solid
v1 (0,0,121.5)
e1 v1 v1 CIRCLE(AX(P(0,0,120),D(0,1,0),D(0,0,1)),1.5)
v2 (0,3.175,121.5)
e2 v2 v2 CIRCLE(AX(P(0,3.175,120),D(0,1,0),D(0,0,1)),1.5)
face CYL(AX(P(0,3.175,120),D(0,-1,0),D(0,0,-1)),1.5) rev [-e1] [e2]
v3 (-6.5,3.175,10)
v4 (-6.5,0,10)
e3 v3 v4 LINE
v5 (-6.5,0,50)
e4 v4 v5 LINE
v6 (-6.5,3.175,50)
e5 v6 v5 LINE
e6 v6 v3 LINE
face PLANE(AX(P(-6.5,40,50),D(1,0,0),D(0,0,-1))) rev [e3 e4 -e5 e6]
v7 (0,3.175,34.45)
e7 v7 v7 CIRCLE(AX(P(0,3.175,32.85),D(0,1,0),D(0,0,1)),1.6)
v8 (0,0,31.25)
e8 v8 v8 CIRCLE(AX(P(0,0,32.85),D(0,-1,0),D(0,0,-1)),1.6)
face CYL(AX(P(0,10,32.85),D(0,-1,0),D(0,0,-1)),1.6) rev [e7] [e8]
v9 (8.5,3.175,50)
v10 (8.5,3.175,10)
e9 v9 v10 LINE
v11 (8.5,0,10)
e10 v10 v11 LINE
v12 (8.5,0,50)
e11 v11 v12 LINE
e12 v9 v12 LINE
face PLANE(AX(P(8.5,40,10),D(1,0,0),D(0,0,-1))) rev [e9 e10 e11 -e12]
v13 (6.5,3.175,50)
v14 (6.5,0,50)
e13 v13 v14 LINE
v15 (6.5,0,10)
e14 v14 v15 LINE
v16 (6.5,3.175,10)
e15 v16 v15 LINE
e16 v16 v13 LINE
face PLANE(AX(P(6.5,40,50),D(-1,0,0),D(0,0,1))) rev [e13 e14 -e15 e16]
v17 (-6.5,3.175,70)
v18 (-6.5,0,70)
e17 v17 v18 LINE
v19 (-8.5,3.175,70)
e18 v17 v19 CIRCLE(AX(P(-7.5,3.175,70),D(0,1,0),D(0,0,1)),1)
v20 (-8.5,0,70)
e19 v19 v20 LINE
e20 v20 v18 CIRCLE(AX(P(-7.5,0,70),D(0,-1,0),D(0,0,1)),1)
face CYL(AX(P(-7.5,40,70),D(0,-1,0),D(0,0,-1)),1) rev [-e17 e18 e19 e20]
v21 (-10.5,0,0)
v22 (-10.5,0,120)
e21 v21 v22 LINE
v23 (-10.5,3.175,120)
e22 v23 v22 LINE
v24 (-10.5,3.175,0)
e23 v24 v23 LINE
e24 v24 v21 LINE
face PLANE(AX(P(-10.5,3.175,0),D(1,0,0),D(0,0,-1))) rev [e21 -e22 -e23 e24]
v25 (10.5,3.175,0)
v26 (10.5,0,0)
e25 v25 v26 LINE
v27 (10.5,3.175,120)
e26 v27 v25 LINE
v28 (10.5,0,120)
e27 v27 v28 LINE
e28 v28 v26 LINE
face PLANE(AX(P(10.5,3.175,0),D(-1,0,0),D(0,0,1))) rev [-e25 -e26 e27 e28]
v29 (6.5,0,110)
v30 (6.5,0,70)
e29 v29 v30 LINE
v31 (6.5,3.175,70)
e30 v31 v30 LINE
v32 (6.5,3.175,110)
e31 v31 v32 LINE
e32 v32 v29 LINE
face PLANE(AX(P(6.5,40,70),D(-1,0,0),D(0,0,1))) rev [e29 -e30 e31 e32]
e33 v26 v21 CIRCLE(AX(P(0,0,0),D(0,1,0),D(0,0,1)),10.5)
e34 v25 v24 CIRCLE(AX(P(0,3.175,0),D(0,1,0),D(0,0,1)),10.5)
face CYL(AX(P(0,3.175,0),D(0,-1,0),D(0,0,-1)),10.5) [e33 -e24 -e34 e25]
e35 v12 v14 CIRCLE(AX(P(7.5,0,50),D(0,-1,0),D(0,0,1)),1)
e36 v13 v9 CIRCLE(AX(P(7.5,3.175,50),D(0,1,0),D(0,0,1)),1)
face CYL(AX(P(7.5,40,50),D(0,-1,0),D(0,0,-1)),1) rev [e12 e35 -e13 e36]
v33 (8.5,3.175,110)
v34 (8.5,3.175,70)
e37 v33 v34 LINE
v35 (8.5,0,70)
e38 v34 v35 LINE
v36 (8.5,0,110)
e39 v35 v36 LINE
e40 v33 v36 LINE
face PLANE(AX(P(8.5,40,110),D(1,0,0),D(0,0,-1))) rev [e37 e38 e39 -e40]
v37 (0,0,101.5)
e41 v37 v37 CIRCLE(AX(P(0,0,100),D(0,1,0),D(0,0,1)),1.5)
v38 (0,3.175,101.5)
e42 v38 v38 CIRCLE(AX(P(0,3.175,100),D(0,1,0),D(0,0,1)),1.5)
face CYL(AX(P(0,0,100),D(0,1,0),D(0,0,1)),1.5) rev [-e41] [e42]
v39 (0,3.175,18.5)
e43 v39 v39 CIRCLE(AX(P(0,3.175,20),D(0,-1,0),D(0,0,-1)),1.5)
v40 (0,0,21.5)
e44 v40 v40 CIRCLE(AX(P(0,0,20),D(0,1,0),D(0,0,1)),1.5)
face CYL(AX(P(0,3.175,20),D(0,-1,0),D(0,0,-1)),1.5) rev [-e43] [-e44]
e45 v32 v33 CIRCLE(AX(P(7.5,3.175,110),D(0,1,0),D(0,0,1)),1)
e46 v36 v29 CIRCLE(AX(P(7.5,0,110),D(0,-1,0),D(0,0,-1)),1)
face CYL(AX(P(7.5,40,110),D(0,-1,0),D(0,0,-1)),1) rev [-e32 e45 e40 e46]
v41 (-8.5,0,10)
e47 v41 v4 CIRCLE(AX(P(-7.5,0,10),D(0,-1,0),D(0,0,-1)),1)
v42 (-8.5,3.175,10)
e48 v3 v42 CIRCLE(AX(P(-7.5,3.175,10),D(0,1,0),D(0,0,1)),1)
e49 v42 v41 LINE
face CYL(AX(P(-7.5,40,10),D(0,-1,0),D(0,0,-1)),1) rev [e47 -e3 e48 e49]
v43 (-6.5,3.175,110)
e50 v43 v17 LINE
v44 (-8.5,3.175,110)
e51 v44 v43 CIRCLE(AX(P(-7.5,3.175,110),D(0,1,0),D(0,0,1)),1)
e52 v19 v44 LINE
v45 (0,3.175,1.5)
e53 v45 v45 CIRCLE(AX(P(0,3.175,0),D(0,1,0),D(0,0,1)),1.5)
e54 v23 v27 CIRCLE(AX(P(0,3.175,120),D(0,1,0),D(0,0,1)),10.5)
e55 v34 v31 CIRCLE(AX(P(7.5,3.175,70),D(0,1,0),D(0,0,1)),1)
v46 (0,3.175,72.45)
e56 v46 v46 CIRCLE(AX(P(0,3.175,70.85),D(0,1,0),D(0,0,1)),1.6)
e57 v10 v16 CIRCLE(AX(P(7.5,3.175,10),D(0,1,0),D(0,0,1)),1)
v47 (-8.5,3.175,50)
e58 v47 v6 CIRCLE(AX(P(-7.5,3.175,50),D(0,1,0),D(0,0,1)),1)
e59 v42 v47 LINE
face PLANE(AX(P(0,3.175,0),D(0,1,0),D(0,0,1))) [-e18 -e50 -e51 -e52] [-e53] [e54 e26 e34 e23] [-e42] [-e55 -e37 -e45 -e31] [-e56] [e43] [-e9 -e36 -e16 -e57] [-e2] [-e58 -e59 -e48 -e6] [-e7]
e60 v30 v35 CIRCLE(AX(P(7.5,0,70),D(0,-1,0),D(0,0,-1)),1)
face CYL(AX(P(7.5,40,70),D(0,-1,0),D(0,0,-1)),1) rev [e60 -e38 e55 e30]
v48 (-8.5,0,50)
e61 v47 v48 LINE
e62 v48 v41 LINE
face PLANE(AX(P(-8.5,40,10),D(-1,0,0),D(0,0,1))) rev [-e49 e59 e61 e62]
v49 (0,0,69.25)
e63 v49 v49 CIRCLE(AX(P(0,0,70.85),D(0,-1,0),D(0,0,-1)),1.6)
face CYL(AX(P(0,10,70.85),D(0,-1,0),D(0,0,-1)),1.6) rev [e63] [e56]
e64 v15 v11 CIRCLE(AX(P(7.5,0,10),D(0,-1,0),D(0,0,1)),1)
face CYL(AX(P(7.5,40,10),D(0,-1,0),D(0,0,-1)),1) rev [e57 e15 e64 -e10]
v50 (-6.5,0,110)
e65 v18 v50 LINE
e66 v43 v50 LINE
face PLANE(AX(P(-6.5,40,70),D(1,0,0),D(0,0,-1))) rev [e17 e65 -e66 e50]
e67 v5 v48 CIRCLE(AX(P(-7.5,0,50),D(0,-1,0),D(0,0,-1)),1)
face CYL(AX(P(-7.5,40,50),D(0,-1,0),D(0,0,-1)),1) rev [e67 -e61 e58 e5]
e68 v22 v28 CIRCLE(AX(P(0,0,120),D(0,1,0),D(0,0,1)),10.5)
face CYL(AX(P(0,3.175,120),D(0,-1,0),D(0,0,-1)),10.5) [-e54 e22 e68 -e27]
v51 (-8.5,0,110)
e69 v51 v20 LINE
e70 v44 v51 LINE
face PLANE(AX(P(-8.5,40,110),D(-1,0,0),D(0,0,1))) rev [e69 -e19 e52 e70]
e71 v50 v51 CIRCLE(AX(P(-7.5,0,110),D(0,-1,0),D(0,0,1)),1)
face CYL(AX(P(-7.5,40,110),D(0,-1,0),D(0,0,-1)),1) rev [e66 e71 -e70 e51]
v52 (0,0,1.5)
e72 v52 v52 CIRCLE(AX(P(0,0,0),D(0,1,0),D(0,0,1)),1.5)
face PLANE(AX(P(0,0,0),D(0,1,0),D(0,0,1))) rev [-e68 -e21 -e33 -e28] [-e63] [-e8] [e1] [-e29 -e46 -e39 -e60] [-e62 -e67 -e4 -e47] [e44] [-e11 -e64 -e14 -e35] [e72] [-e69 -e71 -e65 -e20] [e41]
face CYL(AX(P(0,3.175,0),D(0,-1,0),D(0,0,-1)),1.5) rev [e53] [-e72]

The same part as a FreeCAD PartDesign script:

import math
import FreeCAD as App
import Part
import Sketcher

V = App.Vector
Q = App.Units.Quantity

doc = App.newDocument("Part")
body = doc.addObject("PartDesign::Body", "Body")

# Sketch on XZ plane
sketch1 = doc.addObject("Sketcher::SketchObject", "Sketch")
body.addObject(sketch1)
sketch1.AttachmentSupport = (doc.XZ_Plane, [""])
sketch1.MapMode = "FlatFace"
sketch1.addGeometry(Part.LineSegment(V(-10.5, 0, 0), V(-10.5, 120, 0)), False)
sketch1.addGeometry(Part.ArcOfCircle(Part.Circle(V(0, 120, 0), V(0, 0, 1), 10.5), math.radians(0), math.radians(180)), False)
sketch1.addGeometry(Part.LineSegment(V(10.5, 120, 0), V(10.5, 0, 0)), False)
sketch1.addGeometry(Part.ArcOfCircle(Part.Circle(V(0, 0, 0), V(0, 0, 1), 10.5), math.radians(180), math.radians(360)), False)
sketch1.addGeometry(Part.Circle(V(0, 120, 0), V(0, 0, 1), 1.5), False)
sketch1.addGeometry(Part.Circle(V(0, 0, 0), V(0, 0, 1), 1.5), False)
sketch1.addConstraint(Sketcher.Constraint("Tangent", 0, 2, 1, 2))
sketch1.addConstraint(Sketcher.Constraint("Tangent", 1, 1, 2, 1))
sketch1.addConstraint(Sketcher.Constraint("Tangent", 2, 2, 3, 2))
sketch1.addConstraint(Sketcher.Constraint("Tangent", 3, 1, 0, 1))
sketch1.addConstraint(Sketcher.Constraint("Vertical", 0))
sketch1.addConstraint(Sketcher.Constraint("Vertical", 2))
sketch1.addConstraint(Sketcher.Constraint("Coincident", 3, 3, -1, 1))
sketch1.addConstraint(Sketcher.Constraint("Coincident", 5, 3, -1, 1))
sketch1.addConstraint(Sketcher.Constraint("Coincident", 4, 3, 1, 3))
sketch1.addConstraint(Sketcher.Constraint("Equal", 4, 5))
sketch1.addConstraint(Sketcher.Constraint("Diameter", 4, Q("3 mm")))
sketch1.addConstraint(Sketcher.Constraint("Radius", 1, Q("10.5 mm")))
sketch1.addConstraint(Sketcher.Constraint("DistanceY", 0, 1, 0, 2, Q("120 mm")))
pad1 = doc.addObject("PartDesign::Pad", "Pad")
body.addObject(pad1)
pad1.Profile = sketch1
pad1.Length = 3.175
pad1.Reversed = True

# Sketch on XZ plane
sketch2 = doc.addObject("Sketcher::SketchObject", "Sketch001")
body.addObject(sketch2)
sketch2.AttachmentSupport = (doc.XZ_Plane, [""])
sketch2.MapMode = "FlatFace"
sketch2.addGeometry(Part.Circle(V(0, 20, 0), V(0, 0, 1), 1.5), False)
sketch2.addConstraint(Sketcher.Constraint("PointOnObject", 0, 3, -2))
sketch2.addConstraint(Sketcher.Constraint("Diameter", 0, Q("3 mm")))
sketch2.addConstraint(Sketcher.Constraint("DistanceY", -1, 1, 0, 3, Q("20 mm")))
pocket1 = doc.addObject("PartDesign::Pocket", "Pocket")
body.addObject(pocket1)
pocket1.Profile = sketch2
pocket1.Type = "ThroughAll"
pocket1.Midplane = True

# Sketch on XZ plane
sketch3 = doc.addObject("Sketcher::SketchObject", "Sketch002")
body.addObject(sketch3)
sketch3.AttachmentSupport = (doc.XZ_Plane, [""])
sketch3.MapMode = "FlatFace"
sketch3.AttachmentOffset = App.Placement(V(0, 0, -3.175), App.Rotation())
sketch3.addGeometry(Part.Circle(V(0, 100, 0), V(0, 0, 1), 1.5), False)
sketch3.addConstraint(Sketcher.Constraint("PointOnObject", 0, 3, -2))
sketch3.addConstraint(Sketcher.Constraint("Diameter", 0, Q("3 mm")))
sketch3.addConstraint(Sketcher.Constraint("DistanceY", -1, 1, 0, 3, Q("100 mm")))
pocket2 = doc.addObject("PartDesign::Pocket", "Pocket001")
body.addObject(pocket2)
pocket2.Profile = sketch3
pocket2.Type = "ThroughAll"
pocket2.Midplane = True

# Sketch on XZ plane
sketch4 = doc.addObject("Sketcher::SketchObject", "Sketch003")
body.addObject(sketch4)
sketch4.AttachmentSupport = (doc.XZ_Plane, [""])
sketch4.MapMode = "FlatFace"
sketch4.addGeometry(Part.LineSegment(V(-8.5, 50, 0), V(-8.5, 10, 0)), False)
sketch4.addGeometry(Part.ArcOfCircle(Part.Circle(V(-7.5, 10, 0), V(0, 0, 1), 1), math.radians(180), math.radians(360)), False)
sketch4.addGeometry(Part.LineSegment(V(-6.5, 10, 0), V(-6.5, 50, 0)), False)
sketch4.addGeometry(Part.ArcOfCircle(Part.Circle(V(-7.5, 50, 0), V(0, 0, 1), 1), math.radians(0), math.radians(180)), False)
sketch4.addGeometry(Part.LineSegment(V(6.5, 50, 0), V(6.5, 10, 0)), False)
sketch4.addGeometry(Part.ArcOfCircle(Part.Circle(V(7.5, 10, 0), V(0, 0, 1), 1), math.radians(180), math.radians(360)), False)
sketch4.addGeometry(Part.LineSegment(V(8.5, 10, 0), V(8.5, 50, 0)), False)
sketch4.addGeometry(Part.ArcOfCircle(Part.Circle(V(7.5, 50, 0), V(0, 0, 1), 1), math.radians(0), math.radians(180)), False)
sketch4.addGeometry(Part.LineSegment(V(8.5, 70, 0), V(8.5, 110, 0)), False)
sketch4.addGeometry(Part.ArcOfCircle(Part.Circle(V(7.5, 110, 0), V(0, 0, 1), 1), math.radians(0), math.radians(180)), False)
sketch4.addGeometry(Part.LineSegment(V(6.5, 110, 0), V(6.5, 70, 0)), False)
sketch4.addGeometry(Part.ArcOfCircle(Part.Circle(V(7.5, 70, 0), V(0, 0, 1), 1), math.radians(180), math.radians(360)), False)
sketch4.addGeometry(Part.LineSegment(V(-6.5, 70, 0), V(-6.5, 110, 0)), False)
sketch4.addGeometry(Part.ArcOfCircle(Part.Circle(V(-7.5, 110, 0), V(0, 0, 1), 1), math.radians(0), math.radians(180)), False)
sketch4.addGeometry(Part.LineSegment(V(-8.5, 110, 0), V(-8.5, 70, 0)), False)
sketch4.addGeometry(Part.ArcOfCircle(Part.Circle(V(-7.5, 70, 0), V(0, 0, 1), 1), math.radians(180), math.radians(360)), False)
sketch4.addConstraint(Sketcher.Constraint("Tangent", 0, 2, 1, 1))
sketch4.addConstraint(Sketcher.Constraint("Tangent", 1, 2, 2, 1))
sketch4.addConstraint(Sketcher.Constraint("Tangent", 2, 2, 3, 1))
sketch4.addConstraint(Sketcher.Constraint("Tangent", 3, 2, 0, 1))
sketch4.addConstraint(Sketcher.Constraint("Tangent", 4, 2, 5, 1))
sketch4.addConstraint(Sketcher.Constraint("Tangent", 5, 2, 6, 1))
sketch4.addConstraint(Sketcher.Constraint("Tangent", 6, 2, 7, 1))
sketch4.addConstraint(Sketcher.Constraint("Tangent", 7, 2, 4, 1))
sketch4.addConstraint(Sketcher.Constraint("Tangent", 8, 2, 9, 1))
sketch4.addConstraint(Sketcher.Constraint("Tangent", 9, 2, 10, 1))
sketch4.addConstraint(Sketcher.Constraint("Tangent", 10, 2, 11, 1))
sketch4.addConstraint(Sketcher.Constraint("Tangent", 11, 2, 8, 1))
sketch4.addConstraint(Sketcher.Constraint("Tangent", 12, 2, 13, 1))
sketch4.addConstraint(Sketcher.Constraint("Tangent", 13, 2, 14, 1))
sketch4.addConstraint(Sketcher.Constraint("Tangent", 14, 2, 15, 1))
sketch4.addConstraint(Sketcher.Constraint("Tangent", 15, 2, 12, 1))
sketch4.addConstraint(Sketcher.Constraint("Vertical", 0))
sketch4.addConstraint(Sketcher.Constraint("Vertical", 2))
sketch4.addConstraint(Sketcher.Constraint("Vertical", 4))
sketch4.addConstraint(Sketcher.Constraint("Vertical", 6))
sketch4.addConstraint(Sketcher.Constraint("Vertical", 8))
sketch4.addConstraint(Sketcher.Constraint("Vertical", 10))
sketch4.addConstraint(Sketcher.Constraint("Vertical", 12))
sketch4.addConstraint(Sketcher.Constraint("Vertical", 14))
sketch4.addConstraint(Sketcher.Constraint("Equal", 3, 5))
sketch4.addConstraint(Sketcher.Constraint("Equal", 7, 9))
sketch4.addConstraint(Sketcher.Constraint("Equal", 11, 13))
sketch4.addConstraint(Sketcher.Constraint("Symmetric", 1, 3, 5, 3, -2))
sketch4.addConstraint(Sketcher.Constraint("Symmetric", 9, 3, 13, 3, -2))
sketch4.addConstraint(Sketcher.Constraint("Horizontal", 3, 3, 7, 3))
sketch4.addConstraint(Sketcher.Constraint("Horizontal", 11, 3, 15, 3))
sketch4.addConstraint(Sketcher.Constraint("Vertical", 7, 3, 9, 3))
sketch4.addConstraint(Sketcher.Constraint("Equal", 6, 8))
sketch4.addConstraint(Sketcher.Constraint("Radius", 1, Q("1 mm")))
sketch4.addConstraint(Sketcher.Constraint("DistanceY", 0, 2, 0, 1, Q("40 mm")))
sketch4.addConstraint(Sketcher.Constraint("DistanceY", -1, 1, 1, 3, Q("10 mm")))
sketch4.addConstraint(Sketcher.Constraint("DistanceY", -1, 1, 9, 3, Q("110 mm")))
sketch4.addConstraint(Sketcher.Constraint("DistanceX", 1, 3, 5, 3, Q("15 mm")))
pocket3 = doc.addObject("PartDesign::Pocket", "Pocket002")
body.addObject(pocket3)
pocket3.Profile = sketch4
pocket3.Length = 40

# Sketch on XZ plane
sketch5 = doc.addObject("Sketcher::SketchObject", "Sketch004")
body.addObject(sketch5)
sketch5.AttachmentSupport = (doc.XZ_Plane, [""])
sketch5.MapMode = "FlatFace"
sketch5.addGeometry(Part.Circle(V(0, 70.8, 0), V(0, 0, 1), 1.6), False)
sketch5.addGeometry(Part.Circle(V(0, 32.9, 0), V(0, 0, 1), 1.6), False)
sketch5.addConstraint(Sketcher.Constraint("Equal", 0, 1))
sketch5.addConstraint(Sketcher.Constraint("PointOnObject", 0, 3, -2))
sketch5.addConstraint(Sketcher.Constraint("PointOnObject", 1, 3, -2))
sketch5.addConstraint(Sketcher.Constraint("Diameter", 0, Q("3.2 mm")))
sketch5.addConstraint(Sketcher.Constraint("DistanceY", 1, 3, 0, 3, Q("38 mm")))
sketch5.addConstraint(Sketcher.Constraint("DistanceY", -1, 1, 0, 3, Q("70.85 mm")))
pocket4 = doc.addObject("PartDesign::Pocket", "Pocket003")
body.addObject(pocket4)
pocket4.Profile = sketch5
pocket4.Length = 10

doc.recompute()
